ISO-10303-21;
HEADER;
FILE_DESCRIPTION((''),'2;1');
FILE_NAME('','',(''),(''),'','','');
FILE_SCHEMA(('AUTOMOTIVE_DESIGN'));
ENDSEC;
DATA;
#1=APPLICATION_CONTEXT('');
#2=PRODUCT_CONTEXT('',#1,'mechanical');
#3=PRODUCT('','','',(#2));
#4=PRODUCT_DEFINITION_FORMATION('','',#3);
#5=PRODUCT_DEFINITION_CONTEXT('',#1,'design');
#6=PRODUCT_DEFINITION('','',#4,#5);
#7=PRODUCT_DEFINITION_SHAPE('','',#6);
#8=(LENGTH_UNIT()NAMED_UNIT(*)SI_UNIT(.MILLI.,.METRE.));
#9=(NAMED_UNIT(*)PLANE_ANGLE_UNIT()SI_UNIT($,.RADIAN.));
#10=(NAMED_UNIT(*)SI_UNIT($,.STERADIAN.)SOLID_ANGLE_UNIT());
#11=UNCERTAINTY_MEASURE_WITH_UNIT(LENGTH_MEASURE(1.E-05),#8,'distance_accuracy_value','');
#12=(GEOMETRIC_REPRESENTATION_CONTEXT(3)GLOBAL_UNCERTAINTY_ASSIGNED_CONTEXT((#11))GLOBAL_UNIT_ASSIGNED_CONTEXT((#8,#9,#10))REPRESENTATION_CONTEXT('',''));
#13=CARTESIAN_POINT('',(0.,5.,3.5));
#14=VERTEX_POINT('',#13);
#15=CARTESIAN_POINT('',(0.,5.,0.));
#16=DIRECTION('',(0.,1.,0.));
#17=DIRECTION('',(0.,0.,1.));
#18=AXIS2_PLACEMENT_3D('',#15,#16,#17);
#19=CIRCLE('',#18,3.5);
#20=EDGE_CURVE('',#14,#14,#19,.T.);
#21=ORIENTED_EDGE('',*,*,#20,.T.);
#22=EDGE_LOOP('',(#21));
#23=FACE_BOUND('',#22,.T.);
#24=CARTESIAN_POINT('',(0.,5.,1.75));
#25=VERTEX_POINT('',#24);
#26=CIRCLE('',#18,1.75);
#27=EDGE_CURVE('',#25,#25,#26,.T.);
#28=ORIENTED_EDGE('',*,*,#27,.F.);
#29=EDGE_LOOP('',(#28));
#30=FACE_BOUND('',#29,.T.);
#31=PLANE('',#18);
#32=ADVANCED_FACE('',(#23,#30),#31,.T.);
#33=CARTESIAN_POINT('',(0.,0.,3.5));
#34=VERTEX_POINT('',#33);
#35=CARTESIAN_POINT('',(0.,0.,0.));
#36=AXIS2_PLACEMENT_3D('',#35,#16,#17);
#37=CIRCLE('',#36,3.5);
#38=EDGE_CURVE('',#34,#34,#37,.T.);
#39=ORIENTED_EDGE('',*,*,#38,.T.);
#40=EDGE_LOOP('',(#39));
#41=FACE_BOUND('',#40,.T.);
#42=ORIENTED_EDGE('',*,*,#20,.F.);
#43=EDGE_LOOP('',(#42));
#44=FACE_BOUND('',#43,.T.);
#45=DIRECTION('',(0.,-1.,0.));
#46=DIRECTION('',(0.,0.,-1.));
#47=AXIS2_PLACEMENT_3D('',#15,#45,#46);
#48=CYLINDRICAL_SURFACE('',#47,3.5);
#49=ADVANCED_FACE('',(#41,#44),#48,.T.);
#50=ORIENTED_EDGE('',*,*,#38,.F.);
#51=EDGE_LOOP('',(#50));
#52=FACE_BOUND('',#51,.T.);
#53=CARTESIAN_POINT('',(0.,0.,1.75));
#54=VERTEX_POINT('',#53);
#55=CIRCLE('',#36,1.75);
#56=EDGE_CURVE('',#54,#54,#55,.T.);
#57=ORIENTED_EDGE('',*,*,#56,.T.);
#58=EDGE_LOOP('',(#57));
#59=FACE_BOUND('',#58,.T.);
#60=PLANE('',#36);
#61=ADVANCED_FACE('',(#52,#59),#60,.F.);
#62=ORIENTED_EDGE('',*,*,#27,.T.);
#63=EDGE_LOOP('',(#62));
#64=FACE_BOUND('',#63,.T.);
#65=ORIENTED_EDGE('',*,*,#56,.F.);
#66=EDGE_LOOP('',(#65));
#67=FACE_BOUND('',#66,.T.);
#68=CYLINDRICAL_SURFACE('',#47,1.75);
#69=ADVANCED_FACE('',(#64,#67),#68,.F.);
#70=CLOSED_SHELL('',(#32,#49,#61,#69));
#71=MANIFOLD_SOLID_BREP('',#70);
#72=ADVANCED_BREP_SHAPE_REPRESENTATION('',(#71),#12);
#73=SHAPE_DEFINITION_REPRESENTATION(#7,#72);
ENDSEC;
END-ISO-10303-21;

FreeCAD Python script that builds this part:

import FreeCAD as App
import Part
import Sketcher
from FreeCAD import Vector

doc = App.newDocument("Part")
body = doc.addObject("PartDesign::Body", "Body")

sketch1 = body.newObject("Sketcher::SketchObject", "Sketch")
sketch1.AttachmentSupport = (doc.getObject("XZ_Plane"), [""])
sketch1.MapMode = "FlatFace"
sketch1.addGeometry([
    Part.Circle(Vector(0, 0, 0), Vector(0, 0, 1), 3.5),
    Part.Circle(Vector(0, 0, 0), Vector(0, 0, 1), 1.8),
], False)
sketch1.addConstraint([
    Sketcher.Constraint("Coincident", 0, 3, -1, 1),
    Sketcher.Constraint("Coincident", 1, 3, -1, 1),
    Sketcher.Constraint("Diameter", 0, 7.0),
    Sketcher.Constraint("Diameter", 1, 3.5),
])
pad1 = body.newObject("PartDesign::Pad", "Pad")
pad1.Profile = sketch1
pad1.Length = 5
pad1.Reversed = True

doc.recompute()
